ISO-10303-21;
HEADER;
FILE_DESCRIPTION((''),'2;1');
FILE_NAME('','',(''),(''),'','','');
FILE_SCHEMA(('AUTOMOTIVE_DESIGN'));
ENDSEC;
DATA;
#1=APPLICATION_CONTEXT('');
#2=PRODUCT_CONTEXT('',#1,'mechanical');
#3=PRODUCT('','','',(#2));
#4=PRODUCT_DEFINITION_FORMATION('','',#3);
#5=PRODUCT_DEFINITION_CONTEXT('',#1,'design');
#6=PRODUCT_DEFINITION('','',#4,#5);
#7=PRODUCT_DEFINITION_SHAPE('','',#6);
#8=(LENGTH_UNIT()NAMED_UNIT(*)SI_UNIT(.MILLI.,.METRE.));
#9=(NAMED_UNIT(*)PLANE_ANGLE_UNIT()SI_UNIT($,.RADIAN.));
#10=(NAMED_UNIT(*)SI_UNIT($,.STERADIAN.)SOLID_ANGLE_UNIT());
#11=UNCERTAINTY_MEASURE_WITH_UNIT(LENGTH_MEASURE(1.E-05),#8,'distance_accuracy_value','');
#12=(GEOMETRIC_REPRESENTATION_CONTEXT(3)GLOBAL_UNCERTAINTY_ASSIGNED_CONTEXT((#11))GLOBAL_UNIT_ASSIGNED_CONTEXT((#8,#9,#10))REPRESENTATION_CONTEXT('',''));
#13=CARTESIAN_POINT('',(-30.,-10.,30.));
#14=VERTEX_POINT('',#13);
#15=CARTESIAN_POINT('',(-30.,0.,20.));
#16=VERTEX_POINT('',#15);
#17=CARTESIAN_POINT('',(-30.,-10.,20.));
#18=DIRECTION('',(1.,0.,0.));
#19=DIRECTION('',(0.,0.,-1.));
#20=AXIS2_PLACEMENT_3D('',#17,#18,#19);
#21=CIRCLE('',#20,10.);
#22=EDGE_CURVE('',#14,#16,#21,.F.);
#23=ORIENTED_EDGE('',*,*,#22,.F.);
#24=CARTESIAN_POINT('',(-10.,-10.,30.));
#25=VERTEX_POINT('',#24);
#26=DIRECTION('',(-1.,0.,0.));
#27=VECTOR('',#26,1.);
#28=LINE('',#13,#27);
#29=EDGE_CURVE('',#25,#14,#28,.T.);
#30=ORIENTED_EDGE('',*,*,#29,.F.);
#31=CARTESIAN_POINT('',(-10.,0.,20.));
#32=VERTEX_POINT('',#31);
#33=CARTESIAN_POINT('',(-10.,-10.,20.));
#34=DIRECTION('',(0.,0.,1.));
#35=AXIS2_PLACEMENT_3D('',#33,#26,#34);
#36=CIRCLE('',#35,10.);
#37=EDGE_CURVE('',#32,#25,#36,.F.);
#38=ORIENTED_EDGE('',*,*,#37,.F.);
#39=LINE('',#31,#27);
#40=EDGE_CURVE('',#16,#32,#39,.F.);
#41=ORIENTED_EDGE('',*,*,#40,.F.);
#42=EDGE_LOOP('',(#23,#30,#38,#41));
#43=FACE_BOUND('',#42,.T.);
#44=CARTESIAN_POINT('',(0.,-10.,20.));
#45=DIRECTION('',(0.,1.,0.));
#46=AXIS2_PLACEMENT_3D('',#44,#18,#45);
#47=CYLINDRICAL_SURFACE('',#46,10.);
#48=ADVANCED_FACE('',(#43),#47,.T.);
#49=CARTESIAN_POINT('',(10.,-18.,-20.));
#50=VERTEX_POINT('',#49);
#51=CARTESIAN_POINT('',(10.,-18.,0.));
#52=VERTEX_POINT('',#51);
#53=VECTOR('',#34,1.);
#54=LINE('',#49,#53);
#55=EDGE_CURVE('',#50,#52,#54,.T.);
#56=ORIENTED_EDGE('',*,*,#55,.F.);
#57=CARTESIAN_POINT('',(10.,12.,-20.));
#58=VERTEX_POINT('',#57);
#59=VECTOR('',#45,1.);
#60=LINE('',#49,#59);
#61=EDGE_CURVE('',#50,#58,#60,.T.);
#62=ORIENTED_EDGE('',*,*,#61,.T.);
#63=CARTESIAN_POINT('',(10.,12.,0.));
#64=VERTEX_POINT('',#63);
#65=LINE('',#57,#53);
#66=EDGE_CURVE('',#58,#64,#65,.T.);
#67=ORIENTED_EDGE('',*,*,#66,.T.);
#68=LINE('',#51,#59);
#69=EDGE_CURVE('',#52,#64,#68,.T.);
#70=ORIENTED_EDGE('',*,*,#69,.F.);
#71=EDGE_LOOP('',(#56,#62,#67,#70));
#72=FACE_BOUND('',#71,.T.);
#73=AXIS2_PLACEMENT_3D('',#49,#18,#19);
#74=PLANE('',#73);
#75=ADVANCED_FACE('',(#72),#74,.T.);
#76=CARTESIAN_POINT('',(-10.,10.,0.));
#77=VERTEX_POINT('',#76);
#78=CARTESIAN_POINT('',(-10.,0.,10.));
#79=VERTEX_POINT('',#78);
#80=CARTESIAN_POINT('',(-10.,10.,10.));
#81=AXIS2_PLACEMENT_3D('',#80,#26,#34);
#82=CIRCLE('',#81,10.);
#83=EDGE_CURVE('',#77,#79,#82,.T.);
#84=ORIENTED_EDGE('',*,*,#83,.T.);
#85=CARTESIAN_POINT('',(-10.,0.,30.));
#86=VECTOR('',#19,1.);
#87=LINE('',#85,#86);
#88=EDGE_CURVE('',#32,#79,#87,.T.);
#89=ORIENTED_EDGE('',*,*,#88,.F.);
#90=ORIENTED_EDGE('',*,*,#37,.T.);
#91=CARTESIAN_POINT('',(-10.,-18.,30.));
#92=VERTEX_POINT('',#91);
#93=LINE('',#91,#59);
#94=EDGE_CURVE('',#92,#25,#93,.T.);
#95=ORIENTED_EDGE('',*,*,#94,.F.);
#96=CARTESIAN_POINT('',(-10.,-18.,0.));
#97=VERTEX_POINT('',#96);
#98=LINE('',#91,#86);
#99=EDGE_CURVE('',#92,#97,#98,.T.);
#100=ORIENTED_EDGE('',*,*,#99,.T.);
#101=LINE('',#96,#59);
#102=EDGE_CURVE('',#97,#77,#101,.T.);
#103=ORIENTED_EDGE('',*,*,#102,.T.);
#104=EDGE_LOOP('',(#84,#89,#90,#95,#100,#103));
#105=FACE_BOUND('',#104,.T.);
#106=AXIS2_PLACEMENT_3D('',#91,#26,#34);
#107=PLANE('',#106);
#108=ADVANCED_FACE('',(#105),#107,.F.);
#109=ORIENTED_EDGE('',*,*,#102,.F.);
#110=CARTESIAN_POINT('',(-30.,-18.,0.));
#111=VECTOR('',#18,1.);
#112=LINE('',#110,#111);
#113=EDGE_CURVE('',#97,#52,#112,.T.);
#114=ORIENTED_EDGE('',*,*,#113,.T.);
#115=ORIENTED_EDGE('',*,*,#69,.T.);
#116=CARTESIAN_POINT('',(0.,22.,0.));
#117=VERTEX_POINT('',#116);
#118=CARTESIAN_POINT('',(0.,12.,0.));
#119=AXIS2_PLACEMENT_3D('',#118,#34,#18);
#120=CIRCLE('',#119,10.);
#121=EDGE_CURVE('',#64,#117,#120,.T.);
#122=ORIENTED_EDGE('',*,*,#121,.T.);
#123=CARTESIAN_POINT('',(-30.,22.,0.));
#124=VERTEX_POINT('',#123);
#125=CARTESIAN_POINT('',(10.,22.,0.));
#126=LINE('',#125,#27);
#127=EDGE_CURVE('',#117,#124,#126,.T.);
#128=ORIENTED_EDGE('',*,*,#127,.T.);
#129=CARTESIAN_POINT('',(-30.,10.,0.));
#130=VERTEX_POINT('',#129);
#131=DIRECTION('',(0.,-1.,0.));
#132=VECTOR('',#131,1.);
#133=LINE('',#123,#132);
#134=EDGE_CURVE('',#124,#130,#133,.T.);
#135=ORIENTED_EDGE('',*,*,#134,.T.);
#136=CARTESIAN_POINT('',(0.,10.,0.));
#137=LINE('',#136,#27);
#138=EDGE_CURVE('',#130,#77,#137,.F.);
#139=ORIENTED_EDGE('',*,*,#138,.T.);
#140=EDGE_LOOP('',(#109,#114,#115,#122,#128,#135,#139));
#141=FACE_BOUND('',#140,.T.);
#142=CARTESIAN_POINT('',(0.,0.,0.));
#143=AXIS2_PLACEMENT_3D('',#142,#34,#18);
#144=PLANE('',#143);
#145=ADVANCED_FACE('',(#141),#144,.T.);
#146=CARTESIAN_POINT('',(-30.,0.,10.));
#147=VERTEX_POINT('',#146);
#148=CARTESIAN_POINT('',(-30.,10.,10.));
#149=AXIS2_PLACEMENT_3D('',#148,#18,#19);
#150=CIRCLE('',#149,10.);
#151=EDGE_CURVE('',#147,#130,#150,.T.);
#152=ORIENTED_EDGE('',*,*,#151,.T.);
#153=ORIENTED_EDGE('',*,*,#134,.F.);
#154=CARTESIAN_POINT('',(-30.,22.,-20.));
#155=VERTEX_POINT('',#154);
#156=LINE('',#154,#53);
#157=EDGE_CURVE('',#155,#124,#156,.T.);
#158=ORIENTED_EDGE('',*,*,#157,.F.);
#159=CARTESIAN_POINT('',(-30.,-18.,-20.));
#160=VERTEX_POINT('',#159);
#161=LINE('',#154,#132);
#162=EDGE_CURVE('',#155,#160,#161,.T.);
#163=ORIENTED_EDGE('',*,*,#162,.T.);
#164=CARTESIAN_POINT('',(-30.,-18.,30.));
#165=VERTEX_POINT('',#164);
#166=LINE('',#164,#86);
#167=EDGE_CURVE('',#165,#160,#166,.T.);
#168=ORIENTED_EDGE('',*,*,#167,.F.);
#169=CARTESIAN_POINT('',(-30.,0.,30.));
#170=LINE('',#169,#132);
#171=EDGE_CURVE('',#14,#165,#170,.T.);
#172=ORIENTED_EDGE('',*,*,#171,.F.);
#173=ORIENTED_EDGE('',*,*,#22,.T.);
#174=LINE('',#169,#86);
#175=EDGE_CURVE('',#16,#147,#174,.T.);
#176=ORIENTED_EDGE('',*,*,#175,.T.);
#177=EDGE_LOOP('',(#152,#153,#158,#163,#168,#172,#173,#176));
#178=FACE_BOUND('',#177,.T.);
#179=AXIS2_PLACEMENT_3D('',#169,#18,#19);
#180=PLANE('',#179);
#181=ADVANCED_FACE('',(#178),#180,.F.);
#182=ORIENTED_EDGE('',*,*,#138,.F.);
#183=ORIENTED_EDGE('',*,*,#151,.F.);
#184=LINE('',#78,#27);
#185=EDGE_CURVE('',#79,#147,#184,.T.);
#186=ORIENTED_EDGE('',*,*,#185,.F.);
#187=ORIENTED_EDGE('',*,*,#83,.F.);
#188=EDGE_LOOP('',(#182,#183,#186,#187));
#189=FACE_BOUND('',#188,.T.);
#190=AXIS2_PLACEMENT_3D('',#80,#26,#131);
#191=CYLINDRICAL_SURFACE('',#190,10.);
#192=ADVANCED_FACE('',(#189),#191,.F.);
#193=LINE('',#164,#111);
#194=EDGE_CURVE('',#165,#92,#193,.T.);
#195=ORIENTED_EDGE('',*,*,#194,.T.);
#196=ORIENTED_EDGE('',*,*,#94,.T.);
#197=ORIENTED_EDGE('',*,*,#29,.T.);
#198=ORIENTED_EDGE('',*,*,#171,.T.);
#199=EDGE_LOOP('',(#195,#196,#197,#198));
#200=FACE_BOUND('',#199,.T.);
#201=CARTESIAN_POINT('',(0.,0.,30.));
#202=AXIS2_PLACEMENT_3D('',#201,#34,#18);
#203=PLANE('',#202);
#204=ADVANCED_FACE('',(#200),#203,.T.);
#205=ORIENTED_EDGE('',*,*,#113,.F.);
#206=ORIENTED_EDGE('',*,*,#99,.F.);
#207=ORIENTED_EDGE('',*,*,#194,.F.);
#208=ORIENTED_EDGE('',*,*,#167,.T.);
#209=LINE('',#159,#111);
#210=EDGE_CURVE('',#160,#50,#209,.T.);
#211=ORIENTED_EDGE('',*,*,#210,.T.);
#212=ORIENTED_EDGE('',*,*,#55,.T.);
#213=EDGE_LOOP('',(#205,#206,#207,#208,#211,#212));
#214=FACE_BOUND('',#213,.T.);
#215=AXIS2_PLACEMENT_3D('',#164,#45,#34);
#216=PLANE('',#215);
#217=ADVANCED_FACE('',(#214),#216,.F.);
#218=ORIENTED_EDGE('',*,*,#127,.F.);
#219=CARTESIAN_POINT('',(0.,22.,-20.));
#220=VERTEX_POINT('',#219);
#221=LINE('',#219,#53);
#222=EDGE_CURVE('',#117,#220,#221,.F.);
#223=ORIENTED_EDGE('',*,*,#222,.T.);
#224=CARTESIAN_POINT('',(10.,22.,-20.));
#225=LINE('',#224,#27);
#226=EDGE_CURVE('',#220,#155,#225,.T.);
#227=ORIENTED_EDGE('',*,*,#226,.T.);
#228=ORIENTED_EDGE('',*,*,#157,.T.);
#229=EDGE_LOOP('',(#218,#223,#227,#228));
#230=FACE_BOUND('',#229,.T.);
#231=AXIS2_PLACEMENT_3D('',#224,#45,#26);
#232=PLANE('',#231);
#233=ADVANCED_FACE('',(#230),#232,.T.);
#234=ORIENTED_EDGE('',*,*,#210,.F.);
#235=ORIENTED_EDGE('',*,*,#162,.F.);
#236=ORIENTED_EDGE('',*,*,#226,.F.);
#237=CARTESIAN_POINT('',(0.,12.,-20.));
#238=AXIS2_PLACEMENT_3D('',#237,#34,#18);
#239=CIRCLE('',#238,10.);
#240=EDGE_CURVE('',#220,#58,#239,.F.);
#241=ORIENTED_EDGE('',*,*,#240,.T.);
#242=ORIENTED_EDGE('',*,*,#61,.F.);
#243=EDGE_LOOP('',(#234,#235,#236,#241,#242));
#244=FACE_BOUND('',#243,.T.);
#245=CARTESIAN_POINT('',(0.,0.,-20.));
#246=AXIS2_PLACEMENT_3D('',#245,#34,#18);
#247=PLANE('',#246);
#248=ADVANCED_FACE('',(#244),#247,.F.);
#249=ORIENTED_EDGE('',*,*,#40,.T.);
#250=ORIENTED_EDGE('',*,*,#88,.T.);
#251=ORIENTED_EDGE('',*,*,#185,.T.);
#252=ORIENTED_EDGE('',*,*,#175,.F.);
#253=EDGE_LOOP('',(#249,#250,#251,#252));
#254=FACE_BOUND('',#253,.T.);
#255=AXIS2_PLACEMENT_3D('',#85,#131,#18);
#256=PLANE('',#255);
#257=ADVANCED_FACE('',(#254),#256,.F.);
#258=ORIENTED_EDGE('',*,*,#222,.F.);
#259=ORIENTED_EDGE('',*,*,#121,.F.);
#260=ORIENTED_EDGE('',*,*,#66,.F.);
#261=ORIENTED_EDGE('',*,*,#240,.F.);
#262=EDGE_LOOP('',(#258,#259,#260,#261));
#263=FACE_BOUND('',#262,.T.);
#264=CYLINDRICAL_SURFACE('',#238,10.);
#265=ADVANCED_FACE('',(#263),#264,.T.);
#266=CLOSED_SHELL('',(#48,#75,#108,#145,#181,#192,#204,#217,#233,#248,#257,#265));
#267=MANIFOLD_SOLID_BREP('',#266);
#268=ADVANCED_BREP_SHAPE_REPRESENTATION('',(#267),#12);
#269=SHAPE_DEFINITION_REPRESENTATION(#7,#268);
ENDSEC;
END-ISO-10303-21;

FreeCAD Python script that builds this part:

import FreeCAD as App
import Part
import Sketcher
from FreeCAD import Vector
Q = App.Units.Quantity


def edges_at(feature, points):
    """Names of the edges that pass closest to the given points."""
    edges = feature.Shape.Edges
    near = lambda p: min(range(len(edges)), key=lambda i: edges[i].distToShape(Part.Vertex(*p))[0])
    return sorted({f"Edge{near(p) + 1}" for p in points})

doc = App.newDocument("Part")
body = doc.addObject("PartDesign::Body", "Body")

# Sketch on XY plane
sketch1 = body.newObject("Sketcher::SketchObject", "Sketch")
sketch1.AttachmentSupport = (doc.getObject("XY_Plane"), [""])
sketch1.MapMode = "FlatFace"
sketch1.addGeometry([
    Part.LineSegment(Vector(-30, 0, 0), Vector(-30, -18, 0)),
    Part.LineSegment(Vector(-30, -18, 0), Vector(-10, -18, 0)),
    Part.LineSegment(Vector(-10, -18, 0), Vector(-10, 0, 0)),
    Part.LineSegment(Vector(-10, 0, 0), Vector(-30, 0, 0)),
], False)
sketch1.addConstraint([
    Sketcher.Constraint("Coincident", 0, 2, 1, 1),
    Sketcher.Constraint("Coincident", 1, 2, 2, 1),
    Sketcher.Constraint("Coincident", 2, 2, 3, 1),
    Sketcher.Constraint("Coincident", 3, 2, 0, 1),
    Sketcher.Constraint("Vertical", 0),
    Sketcher.Constraint("Horizontal", 1),
    Sketcher.Constraint("Vertical", 2),
    Sketcher.Constraint("Horizontal", 3),
    Sketcher.Constraint("PointOnObject", 2, 2, -1),
    Sketcher.Constraint("DistanceX", 1, 1, 1, 2, Q("20 mm")),
    Sketcher.Constraint("DistanceY", 0, 2, 0, 1, Q("18 mm")),
    Sketcher.Constraint("DistanceX", 0, 2, -1, 1, Q("30 mm")),
])
pad1 = body.newObject("PartDesign::Pad", "Pad")
pad1.Profile = sketch1
pad1.Length = 30

# Sketch on XY plane
sketch2 = body.newObject("Sketcher::SketchObject", "Sketch001")
sketch2.AttachmentSupport = (doc.getObject("XY_Plane"), [""])
sketch2.MapMode = "FlatFace"
sketch2.addGeometry([
    Part.LineSegment(Vector(-30, 22, 0), Vector(-30, -18, 0)),
    Part.LineSegment(Vector(-30, -18, 0), Vector(10, -18, 0)),
    Part.LineSegment(Vector(10, -18, 0), Vector(10, 22, 0)),
    Part.LineSegment(Vector(10, 22, 0), Vector(-30, 22, 0)),
], False)
sketch2.addConstraint([
    Sketcher.Constraint("Coincident", 0, 2, 1, 1),
    Sketcher.Constraint("Coincident", 1, 2, 2, 1),
    Sketcher.Constraint("Coincident", 2, 2, 3, 1),
    Sketcher.Constraint("Coincident", 3, 2, 0, 1),
    Sketcher.Constraint("Vertical", 0),
    Sketcher.Constraint("Horizontal", 1),
    Sketcher.Constraint("Vertical", 2),
    Sketcher.Constraint("Horizontal", 3),
    Sketcher.Constraint("Equal", 3, 0),
    Sketcher.Constraint("DistanceX", 1, 1, 1, 2, Q("40 mm")),
    Sketcher.Constraint("DistanceX", 0, 2, -1, 1, Q("30 mm")),
    Sketcher.Constraint("DistanceY", 0, 2, -1, 1, Q("18 mm")),
])
pad2 = body.newObject("PartDesign::Pad", "Pad001")
pad2.Profile = sketch2
pad2.Length = 20
pad2.Reversed = True
doc.recompute()

fillet = body.newObject("PartDesign::Fillet", "Fillet")
fillet.Base = (pad2, edges_at(pad2, [(10, 22, -10), (-20, 0, 30), (-20, 0, 0)]))
fillet.Radius = 10

doc.recompute()
